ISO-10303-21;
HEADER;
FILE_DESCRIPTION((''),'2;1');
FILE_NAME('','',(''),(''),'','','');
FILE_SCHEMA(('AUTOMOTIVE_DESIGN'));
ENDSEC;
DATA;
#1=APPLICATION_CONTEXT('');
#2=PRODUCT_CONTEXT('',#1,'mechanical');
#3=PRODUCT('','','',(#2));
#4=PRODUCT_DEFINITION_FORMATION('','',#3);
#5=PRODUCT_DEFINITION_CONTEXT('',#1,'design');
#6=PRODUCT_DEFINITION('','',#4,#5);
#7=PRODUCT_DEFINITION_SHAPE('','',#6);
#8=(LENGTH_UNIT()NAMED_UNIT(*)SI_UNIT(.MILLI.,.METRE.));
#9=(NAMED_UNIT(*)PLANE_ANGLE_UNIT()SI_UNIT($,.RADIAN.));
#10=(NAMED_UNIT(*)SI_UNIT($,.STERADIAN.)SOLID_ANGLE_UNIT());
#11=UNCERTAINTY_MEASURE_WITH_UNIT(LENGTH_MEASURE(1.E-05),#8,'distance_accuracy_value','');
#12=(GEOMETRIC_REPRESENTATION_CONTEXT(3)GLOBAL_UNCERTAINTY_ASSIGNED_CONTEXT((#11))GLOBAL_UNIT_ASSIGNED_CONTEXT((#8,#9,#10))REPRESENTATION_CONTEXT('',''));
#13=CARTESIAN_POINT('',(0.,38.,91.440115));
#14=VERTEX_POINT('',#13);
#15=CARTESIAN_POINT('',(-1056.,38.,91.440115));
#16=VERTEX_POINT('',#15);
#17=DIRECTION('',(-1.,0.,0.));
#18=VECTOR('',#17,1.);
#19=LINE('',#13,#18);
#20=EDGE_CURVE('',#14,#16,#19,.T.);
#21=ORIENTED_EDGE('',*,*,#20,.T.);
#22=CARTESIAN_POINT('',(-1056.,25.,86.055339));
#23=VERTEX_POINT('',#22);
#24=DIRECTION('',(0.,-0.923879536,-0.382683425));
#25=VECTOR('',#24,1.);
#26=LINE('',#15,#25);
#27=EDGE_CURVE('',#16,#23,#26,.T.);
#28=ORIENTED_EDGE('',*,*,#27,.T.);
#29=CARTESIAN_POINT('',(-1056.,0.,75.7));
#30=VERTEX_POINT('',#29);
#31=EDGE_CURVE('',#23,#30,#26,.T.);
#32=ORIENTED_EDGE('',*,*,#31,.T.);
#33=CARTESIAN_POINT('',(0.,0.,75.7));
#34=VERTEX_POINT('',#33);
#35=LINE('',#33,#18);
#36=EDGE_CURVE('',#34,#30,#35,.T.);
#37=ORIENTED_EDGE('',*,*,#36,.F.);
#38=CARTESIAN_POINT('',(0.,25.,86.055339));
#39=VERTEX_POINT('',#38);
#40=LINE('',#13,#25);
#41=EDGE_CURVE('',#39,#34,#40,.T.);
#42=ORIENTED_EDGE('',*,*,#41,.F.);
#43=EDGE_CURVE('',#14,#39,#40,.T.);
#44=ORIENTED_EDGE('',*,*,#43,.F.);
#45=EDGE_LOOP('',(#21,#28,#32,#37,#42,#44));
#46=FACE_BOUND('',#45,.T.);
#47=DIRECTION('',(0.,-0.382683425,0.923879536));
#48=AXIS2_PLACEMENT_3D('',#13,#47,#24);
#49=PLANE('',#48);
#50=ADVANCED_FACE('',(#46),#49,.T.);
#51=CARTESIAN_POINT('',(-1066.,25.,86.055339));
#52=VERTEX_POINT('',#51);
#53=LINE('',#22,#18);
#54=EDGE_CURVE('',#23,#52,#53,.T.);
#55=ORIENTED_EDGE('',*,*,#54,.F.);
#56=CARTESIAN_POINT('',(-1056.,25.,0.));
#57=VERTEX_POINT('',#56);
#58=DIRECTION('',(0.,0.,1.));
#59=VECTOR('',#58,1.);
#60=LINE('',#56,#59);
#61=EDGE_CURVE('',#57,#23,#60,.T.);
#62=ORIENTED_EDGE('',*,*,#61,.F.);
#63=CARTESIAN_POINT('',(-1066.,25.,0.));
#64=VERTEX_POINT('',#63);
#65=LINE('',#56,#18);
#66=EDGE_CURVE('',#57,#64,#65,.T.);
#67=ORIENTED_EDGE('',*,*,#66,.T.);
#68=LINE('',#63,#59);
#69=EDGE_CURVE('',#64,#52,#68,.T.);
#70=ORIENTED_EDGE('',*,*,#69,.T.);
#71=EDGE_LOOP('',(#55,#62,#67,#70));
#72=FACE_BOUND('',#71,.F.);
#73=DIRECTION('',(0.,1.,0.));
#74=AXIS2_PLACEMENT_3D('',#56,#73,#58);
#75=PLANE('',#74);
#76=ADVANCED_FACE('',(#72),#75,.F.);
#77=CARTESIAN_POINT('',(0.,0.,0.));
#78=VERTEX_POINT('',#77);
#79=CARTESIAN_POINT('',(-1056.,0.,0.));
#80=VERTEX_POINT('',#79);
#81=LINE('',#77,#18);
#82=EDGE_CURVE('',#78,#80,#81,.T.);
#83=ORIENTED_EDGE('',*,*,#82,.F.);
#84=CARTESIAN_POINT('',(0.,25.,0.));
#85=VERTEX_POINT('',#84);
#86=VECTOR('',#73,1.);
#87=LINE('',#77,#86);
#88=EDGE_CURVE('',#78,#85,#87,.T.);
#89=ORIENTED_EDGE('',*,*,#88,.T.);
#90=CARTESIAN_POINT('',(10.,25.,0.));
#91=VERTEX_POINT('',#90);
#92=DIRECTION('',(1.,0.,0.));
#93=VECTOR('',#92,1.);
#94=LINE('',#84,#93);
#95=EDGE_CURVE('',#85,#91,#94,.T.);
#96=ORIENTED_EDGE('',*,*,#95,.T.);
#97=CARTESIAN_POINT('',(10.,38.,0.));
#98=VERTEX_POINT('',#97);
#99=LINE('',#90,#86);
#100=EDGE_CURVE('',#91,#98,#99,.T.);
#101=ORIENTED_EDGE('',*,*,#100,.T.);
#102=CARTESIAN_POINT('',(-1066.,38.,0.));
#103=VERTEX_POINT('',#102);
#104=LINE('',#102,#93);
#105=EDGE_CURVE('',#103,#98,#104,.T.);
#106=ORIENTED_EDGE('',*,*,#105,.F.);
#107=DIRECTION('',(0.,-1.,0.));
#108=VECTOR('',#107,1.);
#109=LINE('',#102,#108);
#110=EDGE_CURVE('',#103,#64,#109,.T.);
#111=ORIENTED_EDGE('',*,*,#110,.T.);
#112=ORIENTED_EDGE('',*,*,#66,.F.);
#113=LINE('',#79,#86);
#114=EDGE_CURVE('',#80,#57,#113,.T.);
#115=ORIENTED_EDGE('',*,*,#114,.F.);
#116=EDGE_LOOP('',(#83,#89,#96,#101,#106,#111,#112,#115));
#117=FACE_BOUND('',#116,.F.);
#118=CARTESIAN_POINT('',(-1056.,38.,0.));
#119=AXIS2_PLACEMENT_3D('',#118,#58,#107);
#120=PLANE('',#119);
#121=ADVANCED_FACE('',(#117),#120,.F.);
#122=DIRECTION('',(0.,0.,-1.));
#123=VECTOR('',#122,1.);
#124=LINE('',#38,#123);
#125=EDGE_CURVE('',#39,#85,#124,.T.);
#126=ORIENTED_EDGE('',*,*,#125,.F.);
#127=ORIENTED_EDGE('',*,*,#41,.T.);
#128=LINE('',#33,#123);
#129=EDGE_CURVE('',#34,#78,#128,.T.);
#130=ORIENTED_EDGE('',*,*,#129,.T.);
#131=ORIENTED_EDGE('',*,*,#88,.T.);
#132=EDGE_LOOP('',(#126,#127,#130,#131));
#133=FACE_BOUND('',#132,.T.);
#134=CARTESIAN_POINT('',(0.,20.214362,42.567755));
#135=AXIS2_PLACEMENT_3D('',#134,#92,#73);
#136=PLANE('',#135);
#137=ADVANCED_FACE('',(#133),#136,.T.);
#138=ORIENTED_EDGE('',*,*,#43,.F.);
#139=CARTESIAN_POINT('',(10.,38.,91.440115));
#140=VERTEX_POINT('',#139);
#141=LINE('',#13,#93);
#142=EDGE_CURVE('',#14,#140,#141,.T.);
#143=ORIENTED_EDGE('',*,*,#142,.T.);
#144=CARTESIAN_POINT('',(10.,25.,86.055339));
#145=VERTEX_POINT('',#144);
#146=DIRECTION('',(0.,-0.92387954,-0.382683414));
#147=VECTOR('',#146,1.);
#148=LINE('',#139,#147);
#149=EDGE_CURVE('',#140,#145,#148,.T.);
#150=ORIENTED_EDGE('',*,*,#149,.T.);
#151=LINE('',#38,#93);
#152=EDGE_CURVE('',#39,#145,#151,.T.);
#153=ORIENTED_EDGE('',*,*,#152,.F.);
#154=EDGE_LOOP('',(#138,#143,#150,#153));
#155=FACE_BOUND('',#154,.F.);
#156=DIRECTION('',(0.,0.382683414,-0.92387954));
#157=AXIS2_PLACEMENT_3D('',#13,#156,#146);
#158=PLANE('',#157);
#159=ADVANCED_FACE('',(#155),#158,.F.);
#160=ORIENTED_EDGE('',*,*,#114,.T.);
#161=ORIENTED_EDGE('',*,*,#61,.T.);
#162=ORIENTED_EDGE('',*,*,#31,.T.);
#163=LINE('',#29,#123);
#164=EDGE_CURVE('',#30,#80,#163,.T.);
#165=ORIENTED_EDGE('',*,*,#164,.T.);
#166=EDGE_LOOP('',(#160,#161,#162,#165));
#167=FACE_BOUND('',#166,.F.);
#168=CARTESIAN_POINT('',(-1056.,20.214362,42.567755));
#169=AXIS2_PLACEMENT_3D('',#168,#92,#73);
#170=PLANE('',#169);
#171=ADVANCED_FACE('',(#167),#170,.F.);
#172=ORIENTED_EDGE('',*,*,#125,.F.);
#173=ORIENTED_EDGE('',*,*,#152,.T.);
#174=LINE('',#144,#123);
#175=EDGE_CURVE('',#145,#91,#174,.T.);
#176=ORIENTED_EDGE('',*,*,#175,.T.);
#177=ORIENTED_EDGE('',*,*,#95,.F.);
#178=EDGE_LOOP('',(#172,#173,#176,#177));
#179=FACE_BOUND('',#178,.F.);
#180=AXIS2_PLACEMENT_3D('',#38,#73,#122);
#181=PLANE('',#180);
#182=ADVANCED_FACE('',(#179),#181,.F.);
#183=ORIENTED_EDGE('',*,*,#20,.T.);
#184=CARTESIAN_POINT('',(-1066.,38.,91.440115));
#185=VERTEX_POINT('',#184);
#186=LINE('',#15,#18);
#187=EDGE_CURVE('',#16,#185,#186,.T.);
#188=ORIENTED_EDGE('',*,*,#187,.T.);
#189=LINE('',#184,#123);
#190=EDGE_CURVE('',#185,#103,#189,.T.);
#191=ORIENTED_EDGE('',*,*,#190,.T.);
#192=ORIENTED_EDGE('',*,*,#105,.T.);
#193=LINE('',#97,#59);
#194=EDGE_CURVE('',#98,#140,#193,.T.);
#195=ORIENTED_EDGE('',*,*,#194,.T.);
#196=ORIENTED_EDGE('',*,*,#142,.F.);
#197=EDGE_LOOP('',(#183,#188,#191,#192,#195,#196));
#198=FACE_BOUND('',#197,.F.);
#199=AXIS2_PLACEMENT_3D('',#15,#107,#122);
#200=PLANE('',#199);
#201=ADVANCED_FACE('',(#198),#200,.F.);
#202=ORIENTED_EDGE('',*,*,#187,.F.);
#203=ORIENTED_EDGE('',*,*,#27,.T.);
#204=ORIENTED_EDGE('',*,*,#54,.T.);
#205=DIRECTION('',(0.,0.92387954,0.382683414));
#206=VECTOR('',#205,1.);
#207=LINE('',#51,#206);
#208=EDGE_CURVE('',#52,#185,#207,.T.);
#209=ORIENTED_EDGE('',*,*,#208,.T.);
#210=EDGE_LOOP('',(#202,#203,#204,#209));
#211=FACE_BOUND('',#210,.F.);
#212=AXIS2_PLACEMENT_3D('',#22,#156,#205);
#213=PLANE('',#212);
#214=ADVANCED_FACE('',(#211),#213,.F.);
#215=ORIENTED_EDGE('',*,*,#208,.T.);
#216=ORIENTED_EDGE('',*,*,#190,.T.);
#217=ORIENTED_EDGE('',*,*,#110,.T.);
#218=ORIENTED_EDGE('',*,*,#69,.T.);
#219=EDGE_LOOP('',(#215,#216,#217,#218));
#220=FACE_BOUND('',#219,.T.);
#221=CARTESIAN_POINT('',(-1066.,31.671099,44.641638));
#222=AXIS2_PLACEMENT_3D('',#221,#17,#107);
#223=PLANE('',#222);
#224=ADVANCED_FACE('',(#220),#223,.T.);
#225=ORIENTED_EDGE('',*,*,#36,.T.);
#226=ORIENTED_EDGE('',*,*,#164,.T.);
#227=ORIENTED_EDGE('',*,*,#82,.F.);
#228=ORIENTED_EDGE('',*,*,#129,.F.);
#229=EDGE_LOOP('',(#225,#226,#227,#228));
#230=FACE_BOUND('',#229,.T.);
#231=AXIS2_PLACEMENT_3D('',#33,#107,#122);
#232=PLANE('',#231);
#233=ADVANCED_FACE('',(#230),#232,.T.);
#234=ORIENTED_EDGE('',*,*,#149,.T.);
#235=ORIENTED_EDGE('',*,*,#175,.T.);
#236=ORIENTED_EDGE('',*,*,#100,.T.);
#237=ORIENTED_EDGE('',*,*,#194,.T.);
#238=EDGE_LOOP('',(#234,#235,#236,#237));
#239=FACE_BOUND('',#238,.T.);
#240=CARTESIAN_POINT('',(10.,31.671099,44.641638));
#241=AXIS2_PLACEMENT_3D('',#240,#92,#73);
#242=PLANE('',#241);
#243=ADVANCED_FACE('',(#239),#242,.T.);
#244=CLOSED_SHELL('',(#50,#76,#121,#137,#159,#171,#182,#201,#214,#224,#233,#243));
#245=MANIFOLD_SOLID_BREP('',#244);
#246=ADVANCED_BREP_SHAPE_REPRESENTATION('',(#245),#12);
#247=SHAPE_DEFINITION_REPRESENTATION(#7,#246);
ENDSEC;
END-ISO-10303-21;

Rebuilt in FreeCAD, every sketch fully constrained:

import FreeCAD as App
import Part
import Sketcher
Q = App.Units.Quantity


def add_polygon(sketch, points):
    """Adds a closed chain of lines whose ends are joined by coincident constraints."""
    first, n = sketch.GeometryCount, len(points)
    for a, b in zip(points, points[1:] + points[:1]):
        sketch.addGeometry(Part.LineSegment(App.Vector(*a, 0), App.Vector(*b, 0)), False)
    for i in range(n):
        sketch.addConstraint(Sketcher.Constraint("Coincident", first + i, 2, first + (i + 1) % n, 1))

doc = App.newDocument("Part")
body = doc.addObject("PartDesign::Body", "Body")

sketch1 = doc.addObject("Sketcher::SketchObject", "Sketch")
body.addObject(sketch1)
sketch1.AttachmentSupport = (doc.YZ_Plane, [""])
sketch1.MapMode = "FlatFace"
add_polygon(sketch1, [(0, 76), (0, 0), (38, 0), (38, 91)])
sketch1.addConstraint(Sketcher.Constraint("Vertical", 0))
sketch1.addConstraint(Sketcher.Constraint("Horizontal", 1))
sketch1.addConstraint(Sketcher.Constraint("Vertical", 2))
sketch1.addConstraint(Sketcher.Constraint("Coincident", 0, 2, -1, 1))
sketch1.addConstraint(Sketcher.Constraint("DistanceX", 1, 1, 1, 2, Q("38 mm")))
sketch1.addConstraint(Sketcher.Constraint("DistanceY", 0, 2, 0, 1, Q("75.7 mm")))
sketch1.addConstraint(Sketcher.Constraint("Angle", 3, Q("-157.5 deg")))
pad1 = doc.addObject("PartDesign::Pad", "Pad")
body.addObject(pad1)
pad1.Profile = sketch1
pad1.Length = 1056
pad1.Reversed = True

sketch2 = doc.addObject("Sketcher::SketchObject", "Sketch001")
body.addObject(sketch2)
sketch2.AttachmentSupport = (doc.YZ_Plane, [""])
sketch2.MapMode = "FlatFace"
add_polygon(sketch2, [(25, 86), (25, 0), (38, 0), (38, 91)])
sketch2.addConstraint(Sketcher.Constraint("Vertical", 0))
sketch2.addConstraint(Sketcher.Constraint("Horizontal", 1))
sketch2.addConstraint(Sketcher.Constraint("Vertical", 2))
sketch2.addConstraint(Sketcher.Constraint("PointOnObject", 0, 2, -1))
sketch2.addConstraint(Sketcher.Constraint("DistanceX", 1, 1, 1, 2, Q("13 mm")))
sketch2.addConstraint(Sketcher.Constraint("DistanceX", -1, 1, 0, 2, Q("25 mm")))
sketch2.addConstraint(Sketcher.Constraint("Angle", 3, Q("-157.500001 deg")))
sketch2.addConstraint(Sketcher.Constraint("DistanceY", 0, 2, 0, 1, Q("86.055339 mm")))
pad2 = doc.addObject("PartDesign::Pad", "Pad001")
body.addObject(pad2)
pad2.Profile = sketch2
pad2.Length = 10

sketch3 = doc.addObject("Sketcher::SketchObject", "Sketch002")
body.addObject(sketch3)
sketch3.AttachmentSupport = (doc.YZ_Plane, [""])
sketch3.MapMode = "FlatFace"
sketch3.AttachmentOffset = App.Placement(App.Vector(0, 0, -1056), App.Rotation())
add_polygon(sketch3, [(38, 0), (25, 0), (25, 86), (38, 91)])
sketch3.addConstraint(Sketcher.Constraint("Horizontal", 0))
sketch3.addConstraint(Sketcher.Constraint("Vertical", 1))
sketch3.addConstraint(Sketcher.Constraint("Vertical", 3))
sketch3.addConstraint(Sketcher.Constraint("PointOnObject", 0, 2, -1))
sketch3.addConstraint(Sketcher.Constraint("DistanceX", 0, 2, 0, 1, Q("13 mm")))
sketch3.addConstraint(Sketcher.Constraint("DistanceX", -1, 1, 0, 2, Q("25 mm")))
sketch3.addConstraint(Sketcher.Constraint("Angle", 2, Q("22.499999 deg")))
sketch3.addConstraint(Sketcher.Constraint("DistanceY", 1, 1, 1, 2, Q("86.055339 mm")))
pad3 = doc.addObject("PartDesign::Pad", "Pad002")
body.addObject(pad3)
pad3.Profile = sketch3
pad3.Length = 10
pad3.Reversed = True

doc.recompute()
